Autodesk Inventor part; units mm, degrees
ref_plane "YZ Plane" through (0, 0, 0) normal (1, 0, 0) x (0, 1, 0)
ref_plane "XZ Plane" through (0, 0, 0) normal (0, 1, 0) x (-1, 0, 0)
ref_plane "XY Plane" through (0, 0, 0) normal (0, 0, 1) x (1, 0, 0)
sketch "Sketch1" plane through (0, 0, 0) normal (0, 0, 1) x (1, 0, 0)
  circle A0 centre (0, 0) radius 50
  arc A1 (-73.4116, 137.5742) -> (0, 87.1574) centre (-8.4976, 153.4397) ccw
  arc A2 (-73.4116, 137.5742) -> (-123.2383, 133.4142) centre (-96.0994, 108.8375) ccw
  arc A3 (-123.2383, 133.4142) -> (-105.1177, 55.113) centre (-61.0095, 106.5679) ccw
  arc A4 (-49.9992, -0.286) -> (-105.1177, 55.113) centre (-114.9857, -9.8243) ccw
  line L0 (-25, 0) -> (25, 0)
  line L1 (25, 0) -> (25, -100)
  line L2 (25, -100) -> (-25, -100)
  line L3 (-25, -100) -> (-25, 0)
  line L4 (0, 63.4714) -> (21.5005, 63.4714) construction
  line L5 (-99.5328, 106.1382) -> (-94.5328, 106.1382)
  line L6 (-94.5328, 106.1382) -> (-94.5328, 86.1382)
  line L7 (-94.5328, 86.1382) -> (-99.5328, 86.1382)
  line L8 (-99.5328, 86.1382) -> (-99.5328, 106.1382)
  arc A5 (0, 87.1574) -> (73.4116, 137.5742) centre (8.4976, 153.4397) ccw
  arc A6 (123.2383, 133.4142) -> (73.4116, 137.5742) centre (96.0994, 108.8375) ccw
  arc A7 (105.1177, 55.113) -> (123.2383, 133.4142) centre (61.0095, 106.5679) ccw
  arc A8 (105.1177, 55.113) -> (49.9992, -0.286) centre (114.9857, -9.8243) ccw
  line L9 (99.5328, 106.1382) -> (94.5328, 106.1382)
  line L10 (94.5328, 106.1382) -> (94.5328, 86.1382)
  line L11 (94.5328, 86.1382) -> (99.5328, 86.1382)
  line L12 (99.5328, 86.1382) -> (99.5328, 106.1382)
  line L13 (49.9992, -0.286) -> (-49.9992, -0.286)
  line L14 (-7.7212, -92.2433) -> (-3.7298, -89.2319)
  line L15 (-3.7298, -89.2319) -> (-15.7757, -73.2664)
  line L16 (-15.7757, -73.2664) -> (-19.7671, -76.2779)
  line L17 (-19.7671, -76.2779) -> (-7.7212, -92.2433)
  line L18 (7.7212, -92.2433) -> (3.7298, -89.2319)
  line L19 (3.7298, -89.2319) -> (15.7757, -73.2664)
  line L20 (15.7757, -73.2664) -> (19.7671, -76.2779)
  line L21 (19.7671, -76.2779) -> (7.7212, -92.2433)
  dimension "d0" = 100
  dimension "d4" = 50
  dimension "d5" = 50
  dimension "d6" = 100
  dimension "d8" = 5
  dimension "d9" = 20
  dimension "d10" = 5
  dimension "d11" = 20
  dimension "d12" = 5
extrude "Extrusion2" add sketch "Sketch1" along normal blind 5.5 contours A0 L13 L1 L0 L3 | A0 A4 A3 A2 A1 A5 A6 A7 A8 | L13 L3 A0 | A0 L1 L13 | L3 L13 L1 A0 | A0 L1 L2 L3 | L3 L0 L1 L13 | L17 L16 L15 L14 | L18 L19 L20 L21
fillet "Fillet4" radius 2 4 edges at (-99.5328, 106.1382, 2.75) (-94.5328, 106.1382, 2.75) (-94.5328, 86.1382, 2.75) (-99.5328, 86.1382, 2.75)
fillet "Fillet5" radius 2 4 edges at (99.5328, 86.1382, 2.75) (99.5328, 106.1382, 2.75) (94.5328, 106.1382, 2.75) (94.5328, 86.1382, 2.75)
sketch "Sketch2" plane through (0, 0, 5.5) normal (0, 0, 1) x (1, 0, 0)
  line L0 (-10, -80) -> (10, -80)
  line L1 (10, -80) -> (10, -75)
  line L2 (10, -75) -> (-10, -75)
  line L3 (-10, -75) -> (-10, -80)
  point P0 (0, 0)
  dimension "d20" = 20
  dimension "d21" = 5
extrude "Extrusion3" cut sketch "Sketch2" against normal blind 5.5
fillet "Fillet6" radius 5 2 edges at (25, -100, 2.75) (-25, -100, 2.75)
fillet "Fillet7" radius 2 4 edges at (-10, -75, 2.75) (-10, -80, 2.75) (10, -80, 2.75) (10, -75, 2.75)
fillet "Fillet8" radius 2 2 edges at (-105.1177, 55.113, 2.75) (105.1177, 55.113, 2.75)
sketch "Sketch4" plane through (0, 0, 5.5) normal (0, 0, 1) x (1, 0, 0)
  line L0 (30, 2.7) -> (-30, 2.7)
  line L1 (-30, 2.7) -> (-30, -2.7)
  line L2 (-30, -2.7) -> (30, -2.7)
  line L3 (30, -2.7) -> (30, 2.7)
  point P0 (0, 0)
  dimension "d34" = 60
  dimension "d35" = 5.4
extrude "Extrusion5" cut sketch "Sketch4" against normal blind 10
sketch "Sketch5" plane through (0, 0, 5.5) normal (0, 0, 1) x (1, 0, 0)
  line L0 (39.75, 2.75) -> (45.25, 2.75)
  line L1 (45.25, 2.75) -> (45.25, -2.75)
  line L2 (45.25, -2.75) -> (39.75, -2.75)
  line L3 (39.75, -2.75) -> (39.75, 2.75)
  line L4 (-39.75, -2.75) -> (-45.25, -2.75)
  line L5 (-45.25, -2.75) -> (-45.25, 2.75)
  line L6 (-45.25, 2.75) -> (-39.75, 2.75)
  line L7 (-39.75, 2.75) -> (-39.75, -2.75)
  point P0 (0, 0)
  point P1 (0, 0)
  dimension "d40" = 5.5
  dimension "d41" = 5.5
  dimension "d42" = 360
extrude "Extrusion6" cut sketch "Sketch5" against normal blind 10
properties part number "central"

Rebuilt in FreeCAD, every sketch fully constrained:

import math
import FreeCAD as App
import Part
import Sketcher
Q = App.Units.Quantity


def edges_at(feature, points):
    """Names of the edges that pass closest to the given points."""
    edges = feature.Shape.Edges
    near = lambda p: min(range(len(edges)), key=lambda i: edges[i].distToShape(Part.Vertex(*p))[0])
    return sorted({f"Edge{near(p) + 1}" for p in points})


def add_polygon(sketch, points):
    """Adds a closed chain of lines whose ends are joined by coincident constraints."""
    first, n = sketch.GeometryCount, len(points)
    for a, b in zip(points, points[1:] + points[:1]):
        sketch.addGeometry(Part.LineSegment(App.Vector(*a, 0), App.Vector(*b, 0)), False)
    for i in range(n):
        sketch.addConstraint(Sketcher.Constraint("Coincident", first + i, 2, first + (i + 1) % n, 1))

doc = App.newDocument("Part")
body = doc.addObject("PartDesign::Body", "Body")

sketch1 = doc.addObject("Sketcher::SketchObject", "Sketch")
body.addObject(sketch1)
sketch1.AttachmentSupport = (doc.XY_Plane, [""])
sketch1.MapMode = "FlatFace"
sketch1.addGeometry(Part.ArcOfCircle(Part.Circle(App.Vector(-115, -10, 0), App.Vector(0, 0, 1), 66), math.radians(8), math.radians(81)), False)
sketch1.addGeometry(Part.ArcOfCircle(Part.Circle(App.Vector(0, 0, 0), App.Vector(0, 0, 1), 50), math.radians(-180), math.radians(-120)), False)
sketch1.addGeometry(Part.LineSegment(App.Vector(-25, -43, 0), App.Vector(-25, -100, 0)), False)
sketch1.addGeometry(Part.LineSegment(App.Vector(-25, -100, 0), App.Vector(25, -100, 0)), False)
sketch1.addGeometry(Part.LineSegment(App.Vector(25, -100, 0), App.Vector(25, -43, 0)), False)
sketch1.addGeometry(Part.ArcOfCircle(Part.Circle(App.Vector(0, 0, 0), App.Vector(0, 0, 1), 50), math.radians(-60), math.radians(0)), False)
sketch1.addGeometry(Part.ArcOfCircle(Part.Circle(App.Vector(115, -10, 0), App.Vector(0, 0, 1), 66), math.radians(99), math.radians(172)), False)
sketch1.addGeometry(Part.ArcOfCircle(Part.Circle(App.Vector(61, 107, 0), App.Vector(0, 0, 1), 68), math.radians(-49), math.radians(23)), False)
sketch1.addGeometry(Part.ArcOfCircle(Part.Circle(App.Vector(96, 109, 0), App.Vector(0, 0, 1), 37), math.radians(42), math.radians(128)), False)
sketch1.addGeometry(Part.ArcOfCircle(Part.Circle(App.Vector(8, 153, 0), App.Vector(0, 0, 1), 67), math.radians(-97), math.radians(-14)), False)
sketch1.addGeometry(Part.ArcOfCircle(Part.Circle(App.Vector(-8, 153, 0), App.Vector(0, 0, 1), 67), math.radians(-166), math.radians(-83)), False)
sketch1.addGeometry(Part.ArcOfCircle(Part.Circle(App.Vector(-96, 109, 0), App.Vector(0, 0, 1), 37), math.radians(52), math.radians(138)), False)
sketch1.addGeometry(Part.ArcOfCircle(Part.Circle(App.Vector(-61, 107, 0), App.Vector(0, 0, 1), 68), math.radians(157), math.radians(229)), False)
add_polygon(sketch1, [(100, 86), (95, 86), (95, 106), (100, 106)])
add_polygon(sketch1, [(-100, 86), (-100, 106), (-95, 106), (-95, 86)])
sketch1.addConstraint([
    Sketcher.Constraint("Coincident", 0, 1, 1, 1),
    Sketcher.Constraint("Coincident", 1, 2, 2, 1),
    Sketcher.Constraint("Coincident", 2, 2, 3, 1),
    Sketcher.Constraint("Coincident", 3, 2, 4, 1),
    Sketcher.Constraint("Coincident", 4, 2, 5, 1),
    Sketcher.Constraint("Coincident", 5, 2, 6, 2),
    Sketcher.Constraint("Coincident", 6, 1, 7, 1),
    Sketcher.Constraint("Coincident", 7, 2, 8, 1),
    Sketcher.Constraint("Coincident", 8, 2, 9, 2),
    Sketcher.Constraint("Coincident", 9, 1, 10, 2),
    Sketcher.Constraint("Coincident", 10, 1, 11, 1),
    Sketcher.Constraint("Coincident", 11, 2, 12, 1),
    Sketcher.Constraint("Coincident", 12, 2, 0, 2),
    Sketcher.Constraint("Vertical", 2),
    Sketcher.Constraint("Horizontal", 3),
    Sketcher.Constraint("Vertical", 4),
    Sketcher.Constraint("Horizontal", 13),
    Sketcher.Constraint("Vertical", 14),
    Sketcher.Constraint("Horizontal", 15),
    Sketcher.Constraint("Vertical", 16),
    Sketcher.Constraint("Vertical", 17),
    Sketcher.Constraint("Horizontal", 18),
    Sketcher.Constraint("Vertical", 19),
    Sketcher.Constraint("Horizontal", 20),
    Sketcher.Constraint("Coincident", 1, 3, -1, 1),
    Sketcher.Constraint("Coincident", 5, 3, -1, 1),
    Sketcher.Constraint("Equal", 1, 5),
    Sketcher.Constraint("Equal", 0, 6),
    Sketcher.Constraint("Equal", 9, 10),
    Sketcher.Constraint("Equal", 8, 11),
    Sketcher.Constraint("Equal", 7, 12),
    Sketcher.Constraint("Symmetric", 0, 3, 6, 3, -2),
    Sketcher.Constraint("Symmetric", 9, 3, 10, 3, -2),
    Sketcher.Constraint("Symmetric", 8, 3, 11, 3, -2),
    Sketcher.Constraint("Symmetric", 7, 3, 12, 3, -2),
    Sketcher.Constraint("Symmetric", 15, 2, 17, 2, -2),
    Sketcher.Constraint("Symmetric", 13, 2, 19, 2, -2),
    Sketcher.Constraint("Horizontal", 1, 2, 4, 2),
    Sketcher.Constraint("Radius", 1, Q("50 mm")),
    Sketcher.Constraint("DistanceX", 3, 1, 3, 2, Q("50 mm")),
    Sketcher.Constraint("DistanceX", 13, 2, 13, 1, Q("5 mm")),
    Sketcher.Constraint("DistanceY", 14, 1, 14, 2, Q("20 mm")),
    Sketcher.Constraint("DistanceY", 2, 2, -1, 1, Q("100 mm")),
    Sketcher.Constraint("Radius", 0, Q("65.6828 mm")),
    Sketcher.Constraint("Radius", 7, Q("67.7727 mm")),
    Sketcher.Constraint("Radius", 8, Q("36.6133 mm")),
    Sketcher.Constraint("Radius", 9, Q("66.8248 mm")),
    Sketcher.Constraint("DistanceX", 7, 3, 8, 3, Q("35.09 mm")),
    Sketcher.Constraint("DistanceY", 7, 2, 8, 2, Q("4.16 mm")),
    Sketcher.Constraint("DistanceY", -1, 1, 7, 3, Q("106.568 mm")),
    Sketcher.Constraint("DistanceY", 0, 1, -1, 1, Q("0.286 mm")),
    Sketcher.Constraint("DistanceY", -1, 1, 6, 1, Q("55.113 mm")),
    Sketcher.Constraint("DistanceX", 0, 3, 8, 3, Q("211.085 mm")),
    Sketcher.Constraint("DistanceX", 9, 3, 7, 3, Q("52.512 mm")),
    Sketcher.Constraint("DistanceY", 6, 3, 9, 3, Q("163.264 mm")),
    Sketcher.Constraint("DistanceX", 13, 2, 6, 1, Q("10.585 mm")),
    Sketcher.Constraint("DistanceY", 13, 2, 7, 2, Q("47.276 mm")),
])
pad1 = doc.addObject("PartDesign::Pad", "Pad")
body.addObject(pad1)
pad1.Profile = sketch1
pad1.Length = 5.5
doc.recompute()

fillet = doc.addObject("PartDesign::Fillet", "Fillet")
body.addObject(fillet)
fillet.Base = (pad1, edges_at(pad1, [
    (-99.533, 106.138, 2.75),
    (-94.533, 106.138, 2.75),
    (-94.533, 86.138, 2.75),
    (-99.533, 86.138, 2.75),
]))
fillet.Radius = 2
doc.recompute()

fillet2 = doc.addObject("PartDesign::Fillet", "Fillet001")
body.addObject(fillet2)
fillet2.Base = (fillet, edges_at(fillet, [
    (99.533, 86.138, 2.75),
    (99.533, 106.138, 2.75),
    (94.533, 106.138, 2.75),
    (94.533, 86.138, 2.75),
]))
fillet2.Radius = 2

sketch2 = doc.addObject("Sketcher::SketchObject", "Sketch001")
body.addObject(sketch2)
sketch2.AttachmentSupport = (doc.XY_Plane, [""])
sketch2.MapMode = "FlatFace"
sketch2.AttachmentOffset = App.Placement(App.Vector(0, 0, 5.5), App.Rotation())
add_polygon(sketch2, [(-10, -75), (-10, -80), (10, -80), (10, -75)])
sketch2.addConstraint([
    Sketcher.Constraint("Vertical", 0),
    Sketcher.Constraint("Horizontal", 1),
    Sketcher.Constraint("Vertical", 2),
    Sketcher.Constraint("Horizontal", 3),
    Sketcher.Constraint("DistanceX", 1, 1, 1, 2, Q("20 mm")),
    Sketcher.Constraint("DistanceY", 0, 2, 0, 1, Q("5 mm")),
    Sketcher.Constraint("DistanceX", 0, 2, -1, 1, Q("10 mm")),
    Sketcher.Constraint("DistanceY", 0, 2, -1, 1, Q("80 mm")),
])
pocket1 = doc.addObject("PartDesign::Pocket", "Pocket")
body.addObject(pocket1)
pocket1.Profile = sketch2
pocket1.Length = 5.5
doc.recompute()

fillet3 = doc.addObject("PartDesign::Fillet", "Fillet002")
body.addObject(fillet3)
fillet3.Base = (pocket1, edges_at(pocket1, [(25, -100, 2.75), (-25, -100, 2.75)]))
fillet3.Radius = 5
doc.recompute()

fillet4 = doc.addObject("PartDesign::Fillet", "Fillet003")
body.addObject(fillet4)
fillet4.Base = (fillet3, edges_at(fillet3, [
    (-10, -75, 2.75),
    (-10, -80, 2.75),
    (10, -80, 2.75),
    (10, -75, 2.75),
]))
fillet4.Radius = 2
doc.recompute()

fillet5 = doc.addObject("PartDesign::Fillet", "Fillet004")
body.addObject(fillet5)
fillet5.Base = (fillet4, edges_at(fillet4, [(-105.118, 55.113, 2.75), (105.118, 55.113, 2.75)]))
fillet5.Radius = 2

sketch3 = doc.addObject("Sketcher::SketchObject", "Sketch002")
body.addObject(sketch3)
sketch3.AttachmentSupport = (doc.XY_Plane, [""])
sketch3.MapMode = "FlatFace"
sketch3.AttachmentOffset = App.Placement(App.Vector(0, 0, 5.5), App.Rotation())
add_polygon(sketch3, [(30, -3), (30, 3), (-30, 3), (-30, -3)])
sketch3.addConstraint([
    Sketcher.Constraint("Vertical", 0),
    Sketcher.Constraint("Horizontal", 1),
    Sketcher.Constraint("Vertical", 2),
    Sketcher.Constraint("Horizontal", 3),
    Sketcher.Constraint("Symmetric", 0, 2, 2, 2, -1, 1),
    Sketcher.Constraint("DistanceX", 1, 2, 1, 1, Q("60 mm")),
    Sketcher.Constraint("DistanceY", 0, 1, 0, 2, Q("5.4 mm")),
])
pocket2 = doc.addObject("PartDesign::Pocket", "Pocket001")
body.addObject(pocket2)
pocket2.Profile = sketch3
pocket2.Length = 10

sketch4 = doc.addObject("Sketcher::SketchObject", "Sketch003")
body.addObject(sketch4)
sketch4.AttachmentSupport = (doc.XY_Plane, [""])
sketch4.MapMode = "FlatFace"
sketch4.AttachmentOffset = App.Placement(App.Vector(0, 0, 5.5), App.Rotation())
add_polygon(sketch4, [(45, 3), (40, 3), (40, -3), (45, -3)])
add_polygon(sketch4, [(-45, -3), (-40, -3), (-40, 3), (-45, 3)])
sketch4.addConstraint([
    Sketcher.Constraint("Horizontal", 0),
    Sketcher.Constraint("Vertical", 1),
    Sketcher.Constraint("Horizontal", 2),
    Sketcher.Constraint("Vertical", 3),
    Sketcher.Constraint("Horizontal", 4),
    Sketcher.Constraint("Vertical", 5),
    Sketcher.Constraint("Horizontal", 6),
    Sketcher.Constraint("Vertical", 7),
    Sketcher.Constraint("Symmetric", 0, 2, 4, 2, -1, 1),
    Sketcher.Constraint("Symmetric", 2, 2, 6, 2, -1, 1),
    Sketcher.Constraint("Horizontal", 2, 2, 4, 2),
    Sketcher.Constraint("Equal", 6, 1),
    Sketcher.Constraint("DistanceX", 0, 2, 0, 1, Q("5.5 mm")),
    Sketcher.Constraint("DistanceX", 4, 2, 2, 2, Q("85 mm")),
])
pocket3 = doc.addObject("PartDesign::Pocket", "Pocket002")
body.addObject(pocket3)
pocket3.Profile = sketch4
pocket3.Length = 10

doc.recompute()
